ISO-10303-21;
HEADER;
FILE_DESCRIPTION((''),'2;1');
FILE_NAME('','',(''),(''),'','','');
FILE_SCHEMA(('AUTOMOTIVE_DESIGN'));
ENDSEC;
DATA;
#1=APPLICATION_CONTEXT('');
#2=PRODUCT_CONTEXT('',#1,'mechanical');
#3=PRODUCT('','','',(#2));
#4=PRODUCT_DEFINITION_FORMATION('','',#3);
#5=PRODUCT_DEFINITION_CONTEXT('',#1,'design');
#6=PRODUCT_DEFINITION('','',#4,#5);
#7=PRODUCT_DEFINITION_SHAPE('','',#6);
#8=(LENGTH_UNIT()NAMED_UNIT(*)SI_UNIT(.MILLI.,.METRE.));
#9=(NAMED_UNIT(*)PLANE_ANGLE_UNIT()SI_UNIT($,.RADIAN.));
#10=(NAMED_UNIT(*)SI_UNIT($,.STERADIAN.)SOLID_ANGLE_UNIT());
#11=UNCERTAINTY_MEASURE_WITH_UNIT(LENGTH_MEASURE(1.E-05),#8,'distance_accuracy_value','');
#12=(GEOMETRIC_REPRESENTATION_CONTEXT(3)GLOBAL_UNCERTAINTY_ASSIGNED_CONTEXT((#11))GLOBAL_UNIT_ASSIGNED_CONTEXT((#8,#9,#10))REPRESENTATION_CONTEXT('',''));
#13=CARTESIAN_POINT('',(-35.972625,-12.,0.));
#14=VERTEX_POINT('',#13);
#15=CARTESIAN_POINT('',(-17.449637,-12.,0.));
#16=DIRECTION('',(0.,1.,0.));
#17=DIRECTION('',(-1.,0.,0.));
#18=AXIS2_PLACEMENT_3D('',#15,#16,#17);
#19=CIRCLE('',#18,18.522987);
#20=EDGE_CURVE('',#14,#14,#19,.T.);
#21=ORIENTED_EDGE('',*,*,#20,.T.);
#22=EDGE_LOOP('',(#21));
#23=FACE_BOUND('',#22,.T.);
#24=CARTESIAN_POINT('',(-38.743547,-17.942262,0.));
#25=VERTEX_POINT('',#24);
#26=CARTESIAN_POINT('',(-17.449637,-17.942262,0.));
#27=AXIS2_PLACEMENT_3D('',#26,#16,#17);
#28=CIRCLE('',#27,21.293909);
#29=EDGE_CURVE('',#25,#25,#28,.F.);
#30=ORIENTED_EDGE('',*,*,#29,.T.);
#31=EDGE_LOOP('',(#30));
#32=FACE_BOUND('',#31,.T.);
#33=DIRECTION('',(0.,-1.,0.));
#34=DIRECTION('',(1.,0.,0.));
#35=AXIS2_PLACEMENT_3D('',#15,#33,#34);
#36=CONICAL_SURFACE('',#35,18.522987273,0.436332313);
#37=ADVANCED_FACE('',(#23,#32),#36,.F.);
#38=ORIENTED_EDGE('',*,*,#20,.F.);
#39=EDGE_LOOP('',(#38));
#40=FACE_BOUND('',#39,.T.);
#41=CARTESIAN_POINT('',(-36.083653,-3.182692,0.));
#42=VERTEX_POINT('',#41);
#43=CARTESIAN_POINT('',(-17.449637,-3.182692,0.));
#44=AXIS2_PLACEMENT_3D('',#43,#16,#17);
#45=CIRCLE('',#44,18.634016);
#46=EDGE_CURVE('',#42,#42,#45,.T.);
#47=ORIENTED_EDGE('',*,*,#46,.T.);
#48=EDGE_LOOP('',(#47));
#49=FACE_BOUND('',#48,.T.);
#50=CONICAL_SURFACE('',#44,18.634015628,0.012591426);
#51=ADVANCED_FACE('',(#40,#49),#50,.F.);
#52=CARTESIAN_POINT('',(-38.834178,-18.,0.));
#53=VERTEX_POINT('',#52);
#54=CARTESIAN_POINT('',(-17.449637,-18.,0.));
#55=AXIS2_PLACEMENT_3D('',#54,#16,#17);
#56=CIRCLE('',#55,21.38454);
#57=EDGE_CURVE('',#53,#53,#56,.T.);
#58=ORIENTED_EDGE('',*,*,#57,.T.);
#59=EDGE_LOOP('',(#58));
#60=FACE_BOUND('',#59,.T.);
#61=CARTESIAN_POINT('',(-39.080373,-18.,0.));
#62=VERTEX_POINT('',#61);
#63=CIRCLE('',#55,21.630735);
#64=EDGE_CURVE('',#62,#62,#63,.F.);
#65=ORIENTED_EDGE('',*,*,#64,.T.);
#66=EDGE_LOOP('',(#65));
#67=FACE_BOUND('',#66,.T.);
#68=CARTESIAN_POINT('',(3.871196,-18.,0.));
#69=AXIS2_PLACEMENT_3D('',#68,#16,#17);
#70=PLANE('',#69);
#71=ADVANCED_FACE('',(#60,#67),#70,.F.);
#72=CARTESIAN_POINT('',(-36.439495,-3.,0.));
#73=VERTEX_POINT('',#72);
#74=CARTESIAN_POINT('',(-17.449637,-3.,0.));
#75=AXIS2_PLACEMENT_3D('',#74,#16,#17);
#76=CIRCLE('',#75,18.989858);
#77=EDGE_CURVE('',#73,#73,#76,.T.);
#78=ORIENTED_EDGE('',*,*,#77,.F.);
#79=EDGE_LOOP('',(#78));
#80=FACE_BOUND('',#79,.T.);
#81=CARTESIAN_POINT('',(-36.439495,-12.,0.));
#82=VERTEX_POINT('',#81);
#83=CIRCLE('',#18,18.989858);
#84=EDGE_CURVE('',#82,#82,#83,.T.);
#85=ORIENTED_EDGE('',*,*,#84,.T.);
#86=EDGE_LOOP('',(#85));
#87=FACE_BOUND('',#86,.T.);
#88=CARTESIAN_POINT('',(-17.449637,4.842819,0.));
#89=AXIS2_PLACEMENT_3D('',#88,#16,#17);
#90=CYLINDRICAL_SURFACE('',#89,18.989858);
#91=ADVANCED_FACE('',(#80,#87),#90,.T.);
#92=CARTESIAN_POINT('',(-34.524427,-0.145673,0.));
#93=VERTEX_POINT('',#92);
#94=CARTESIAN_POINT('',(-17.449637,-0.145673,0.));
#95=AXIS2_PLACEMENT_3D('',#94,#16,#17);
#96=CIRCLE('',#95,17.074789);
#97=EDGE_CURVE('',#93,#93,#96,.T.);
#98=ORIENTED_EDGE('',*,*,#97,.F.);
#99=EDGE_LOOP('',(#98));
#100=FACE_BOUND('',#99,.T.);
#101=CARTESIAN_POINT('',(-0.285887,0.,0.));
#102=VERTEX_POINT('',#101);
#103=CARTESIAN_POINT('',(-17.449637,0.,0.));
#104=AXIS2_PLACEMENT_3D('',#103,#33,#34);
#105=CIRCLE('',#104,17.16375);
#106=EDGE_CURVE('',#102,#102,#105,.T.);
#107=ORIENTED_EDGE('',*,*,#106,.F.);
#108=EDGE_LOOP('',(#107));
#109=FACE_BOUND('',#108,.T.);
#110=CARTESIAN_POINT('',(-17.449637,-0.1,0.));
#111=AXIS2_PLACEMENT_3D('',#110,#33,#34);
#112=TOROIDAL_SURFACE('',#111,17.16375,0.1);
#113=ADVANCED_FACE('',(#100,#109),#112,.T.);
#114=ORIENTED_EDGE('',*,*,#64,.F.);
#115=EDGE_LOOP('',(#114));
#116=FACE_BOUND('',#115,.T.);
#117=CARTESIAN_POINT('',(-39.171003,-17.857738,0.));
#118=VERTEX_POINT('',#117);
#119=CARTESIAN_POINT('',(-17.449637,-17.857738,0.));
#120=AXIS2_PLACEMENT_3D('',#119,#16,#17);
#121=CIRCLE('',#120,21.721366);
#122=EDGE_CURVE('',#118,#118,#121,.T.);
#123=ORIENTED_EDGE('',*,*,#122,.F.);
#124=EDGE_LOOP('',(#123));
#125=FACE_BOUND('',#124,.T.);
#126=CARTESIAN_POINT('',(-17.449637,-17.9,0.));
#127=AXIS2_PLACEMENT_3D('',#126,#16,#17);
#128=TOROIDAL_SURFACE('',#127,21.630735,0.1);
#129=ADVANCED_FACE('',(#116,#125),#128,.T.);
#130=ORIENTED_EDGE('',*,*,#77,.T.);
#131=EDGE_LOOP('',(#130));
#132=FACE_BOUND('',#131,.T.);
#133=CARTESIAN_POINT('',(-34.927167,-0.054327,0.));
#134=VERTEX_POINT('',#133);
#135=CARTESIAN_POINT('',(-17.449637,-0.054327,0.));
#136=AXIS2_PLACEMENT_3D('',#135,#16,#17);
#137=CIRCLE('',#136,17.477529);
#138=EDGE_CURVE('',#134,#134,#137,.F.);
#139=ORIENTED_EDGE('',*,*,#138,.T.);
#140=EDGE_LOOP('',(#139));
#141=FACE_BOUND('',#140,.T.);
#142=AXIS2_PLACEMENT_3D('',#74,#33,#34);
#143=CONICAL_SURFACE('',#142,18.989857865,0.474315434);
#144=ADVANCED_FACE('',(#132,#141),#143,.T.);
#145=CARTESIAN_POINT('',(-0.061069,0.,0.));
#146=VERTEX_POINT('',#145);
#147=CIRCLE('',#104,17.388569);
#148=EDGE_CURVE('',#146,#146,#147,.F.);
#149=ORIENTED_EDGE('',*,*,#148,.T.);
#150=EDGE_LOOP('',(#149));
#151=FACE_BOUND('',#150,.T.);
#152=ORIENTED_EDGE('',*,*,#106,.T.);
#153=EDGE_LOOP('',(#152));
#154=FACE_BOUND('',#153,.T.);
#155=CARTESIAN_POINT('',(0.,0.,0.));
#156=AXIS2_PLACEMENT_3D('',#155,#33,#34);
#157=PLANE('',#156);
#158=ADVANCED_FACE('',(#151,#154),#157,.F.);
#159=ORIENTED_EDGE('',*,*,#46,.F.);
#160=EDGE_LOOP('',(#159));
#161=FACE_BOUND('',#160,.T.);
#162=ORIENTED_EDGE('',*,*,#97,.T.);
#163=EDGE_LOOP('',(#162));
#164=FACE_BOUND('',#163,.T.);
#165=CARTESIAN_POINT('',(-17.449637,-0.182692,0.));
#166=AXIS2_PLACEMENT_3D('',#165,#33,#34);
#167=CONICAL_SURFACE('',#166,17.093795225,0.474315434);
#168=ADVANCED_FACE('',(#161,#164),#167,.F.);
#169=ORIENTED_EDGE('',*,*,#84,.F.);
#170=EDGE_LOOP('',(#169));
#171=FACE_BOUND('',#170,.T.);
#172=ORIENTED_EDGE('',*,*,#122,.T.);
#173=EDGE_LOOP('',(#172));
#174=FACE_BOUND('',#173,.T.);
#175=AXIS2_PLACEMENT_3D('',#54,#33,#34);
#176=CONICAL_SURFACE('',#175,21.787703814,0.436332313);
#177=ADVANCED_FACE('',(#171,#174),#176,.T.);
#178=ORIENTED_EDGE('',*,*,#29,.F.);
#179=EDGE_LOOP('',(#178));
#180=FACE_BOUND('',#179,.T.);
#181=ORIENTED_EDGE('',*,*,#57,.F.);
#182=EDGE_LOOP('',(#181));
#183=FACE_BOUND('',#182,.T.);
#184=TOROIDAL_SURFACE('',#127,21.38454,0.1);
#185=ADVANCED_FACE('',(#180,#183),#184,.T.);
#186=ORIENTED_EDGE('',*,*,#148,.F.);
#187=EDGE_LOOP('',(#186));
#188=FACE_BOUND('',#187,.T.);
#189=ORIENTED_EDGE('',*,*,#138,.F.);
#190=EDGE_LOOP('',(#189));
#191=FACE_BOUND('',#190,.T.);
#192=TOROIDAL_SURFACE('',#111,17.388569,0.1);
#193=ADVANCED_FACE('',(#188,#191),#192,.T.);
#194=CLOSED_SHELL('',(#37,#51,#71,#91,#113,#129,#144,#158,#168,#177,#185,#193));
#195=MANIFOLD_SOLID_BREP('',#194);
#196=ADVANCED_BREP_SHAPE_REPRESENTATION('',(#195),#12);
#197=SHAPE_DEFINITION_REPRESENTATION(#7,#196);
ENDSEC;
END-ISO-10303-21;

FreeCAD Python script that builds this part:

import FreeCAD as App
import Part
import Sketcher
from FreeCAD import Vector
Q = App.Units.Quantity


def edges_at(feature, points):
    """Names of the edges that pass closest to the given points."""
    edges = feature.Shape.Edges
    near = lambda p: min(range(len(edges)), key=lambda i: edges[i].distToShape(Part.Vertex(*p))[0])
    return sorted({f"Edge{near(p) + 1}" for p in points})

doc = App.newDocument("Part")
body = doc.addObject("PartDesign::Body", "Body")

sketch1 = body.newObject("Sketcher::SketchObject", "Sketch")
sketch1.AttachmentSupport = (doc.getObject("XY_Plane"), [""])
sketch1.MapMode = "FlatFace"
sketch1.addGeometry(Part.LineSegment(Vector(1.54, -3, 0), Vector(0, 0, 0)), False)
sketch1.addGeometry(Part.LineSegment(Vector(0, 0, 0), Vector(-0.45, 0, 0)), False)
sketch1.addGeometry(Part.LineSegment(Vector(-0.45, 0, 0), Vector(-0.36, -0.18, 0)), False)
sketch1.addGeometry(Part.LineSegment(Vector(-0.36, -0.18, 0), Vector(1.18, -3.18, 0)), False)
sketch1.addGeometry(Part.LineSegment(Vector(1.18, -3.18, 0), Vector(1.07, -12, 0)), False)
sketch1.addGeometry(Part.LineSegment(Vector(1.07, -12, 0), Vector(3.87, -18, 0)), False)
sketch1.addGeometry(Part.LineSegment(Vector(3.87, -18, 0), Vector(4.34, -18, 0)), False)
sketch1.addGeometry(Part.LineSegment(Vector(4.34, -18, 0), Vector(1.54, -12, 0)), False)
sketch1.addGeometry(Part.LineSegment(Vector(1.54, -12, 0), Vector(1.54, -3, 0)), False)
sketch1.addGeometry(Part.LineSegment(Vector(-17.45, 0, 0), Vector(-17.45, -18, 0)), True)
sketch1.addConstraint(Sketcher.Constraint("Coincident", 0, 2, 1, 1))
sketch1.addConstraint(Sketcher.Constraint("Coincident", 1, 2, 2, 1))
sketch1.addConstraint(Sketcher.Constraint("Coincident", 2, 2, 3, 1))
sketch1.addConstraint(Sketcher.Constraint("Coincident", 3, 2, 4, 1))
sketch1.addConstraint(Sketcher.Constraint("Coincident", 4, 2, 5, 1))
sketch1.addConstraint(Sketcher.Constraint("Coincident", 5, 2, 6, 1))
sketch1.addConstraint(Sketcher.Constraint("Coincident", 6, 2, 7, 1))
sketch1.addConstraint(Sketcher.Constraint("Coincident", 7, 2, 8, 1))
sketch1.addConstraint(Sketcher.Constraint("Coincident", 8, 2, 0, 1))
sketch1.addConstraint(Sketcher.Constraint("Horizontal", 1))
sketch1.addConstraint(Sketcher.Constraint("Horizontal", 6))
sketch1.addConstraint(Sketcher.Constraint("Vertical", 8))
sketch1.addConstraint(Sketcher.Constraint("Vertical", 9))
sketch1.addConstraint(Sketcher.Constraint("Coincident", 0, 2, -1, 1))
sketch1.addConstraint(Sketcher.Constraint("PointOnObject", 9, 1, -1))
sketch1.addConstraint(Sketcher.Constraint("Parallel", 0, 2))
sketch1.addConstraint(Sketcher.Constraint("Parallel", 2, 3))
sketch1.addConstraint(Sketcher.Constraint("Parallel", 5, 7))
sketch1.addConstraint(Sketcher.Constraint("Horizontal", 4, 2, 7, 2))
sketch1.addConstraint(Sketcher.Constraint("Horizontal", 6, 2, 9, 2))
sketch1.addConstraint(Sketcher.Constraint("Equal", 0, 3))
sketch1.addConstraint(Sketcher.Constraint("DistanceY", 8, 1, 8, 2, 9.0))
sketch1.addConstraint(Sketcher.Constraint("DistanceY", 9, 2, 9, 1, 18.0))
sketch1.addConstraint(Sketcher.Constraint("Angle", 5, Q("-65 deg")))
sketch1.addConstraint(Sketcher.Constraint("DistanceY", 4, 2, -1, 1, 12.0))
sketch1.addConstraint(Sketcher.Constraint("DistanceX", 9, 1, 1, 2, 17.0))
sketch1.addConstraint(Sketcher.Constraint("DistanceX", 6, 1, 6, 2, 0.466871))
sketch1.addConstraint(Sketcher.Constraint("Distance", 0, 3.372281))
sketch1.addConstraint(Sketcher.Constraint("DistanceX", 1, 2, 1, 1, 0.449637))
sketch1.addConstraint(Sketcher.Constraint("DistanceY", 2, 2, -1, 1, 0.182692))
revolution = body.newObject("PartDesign::Revolution", "Revolution")
revolution.Profile = sketch1
revolution.ReferenceAxis = (sketch1, ["Axis0"])
revolution.Angle = 360
doc.recompute()

fillet = body.newObject("PartDesign::Fillet", "Fillet")
fillet.Base = (revolution, edges_at(revolution, [
    (-34.45, 0, 0),
    (-34.899, 0, 0),
    (-39.237, -18, 0),
    (-38.77, -18, 0),
]))
fillet.Radius = 0.1

doc.recompute()
